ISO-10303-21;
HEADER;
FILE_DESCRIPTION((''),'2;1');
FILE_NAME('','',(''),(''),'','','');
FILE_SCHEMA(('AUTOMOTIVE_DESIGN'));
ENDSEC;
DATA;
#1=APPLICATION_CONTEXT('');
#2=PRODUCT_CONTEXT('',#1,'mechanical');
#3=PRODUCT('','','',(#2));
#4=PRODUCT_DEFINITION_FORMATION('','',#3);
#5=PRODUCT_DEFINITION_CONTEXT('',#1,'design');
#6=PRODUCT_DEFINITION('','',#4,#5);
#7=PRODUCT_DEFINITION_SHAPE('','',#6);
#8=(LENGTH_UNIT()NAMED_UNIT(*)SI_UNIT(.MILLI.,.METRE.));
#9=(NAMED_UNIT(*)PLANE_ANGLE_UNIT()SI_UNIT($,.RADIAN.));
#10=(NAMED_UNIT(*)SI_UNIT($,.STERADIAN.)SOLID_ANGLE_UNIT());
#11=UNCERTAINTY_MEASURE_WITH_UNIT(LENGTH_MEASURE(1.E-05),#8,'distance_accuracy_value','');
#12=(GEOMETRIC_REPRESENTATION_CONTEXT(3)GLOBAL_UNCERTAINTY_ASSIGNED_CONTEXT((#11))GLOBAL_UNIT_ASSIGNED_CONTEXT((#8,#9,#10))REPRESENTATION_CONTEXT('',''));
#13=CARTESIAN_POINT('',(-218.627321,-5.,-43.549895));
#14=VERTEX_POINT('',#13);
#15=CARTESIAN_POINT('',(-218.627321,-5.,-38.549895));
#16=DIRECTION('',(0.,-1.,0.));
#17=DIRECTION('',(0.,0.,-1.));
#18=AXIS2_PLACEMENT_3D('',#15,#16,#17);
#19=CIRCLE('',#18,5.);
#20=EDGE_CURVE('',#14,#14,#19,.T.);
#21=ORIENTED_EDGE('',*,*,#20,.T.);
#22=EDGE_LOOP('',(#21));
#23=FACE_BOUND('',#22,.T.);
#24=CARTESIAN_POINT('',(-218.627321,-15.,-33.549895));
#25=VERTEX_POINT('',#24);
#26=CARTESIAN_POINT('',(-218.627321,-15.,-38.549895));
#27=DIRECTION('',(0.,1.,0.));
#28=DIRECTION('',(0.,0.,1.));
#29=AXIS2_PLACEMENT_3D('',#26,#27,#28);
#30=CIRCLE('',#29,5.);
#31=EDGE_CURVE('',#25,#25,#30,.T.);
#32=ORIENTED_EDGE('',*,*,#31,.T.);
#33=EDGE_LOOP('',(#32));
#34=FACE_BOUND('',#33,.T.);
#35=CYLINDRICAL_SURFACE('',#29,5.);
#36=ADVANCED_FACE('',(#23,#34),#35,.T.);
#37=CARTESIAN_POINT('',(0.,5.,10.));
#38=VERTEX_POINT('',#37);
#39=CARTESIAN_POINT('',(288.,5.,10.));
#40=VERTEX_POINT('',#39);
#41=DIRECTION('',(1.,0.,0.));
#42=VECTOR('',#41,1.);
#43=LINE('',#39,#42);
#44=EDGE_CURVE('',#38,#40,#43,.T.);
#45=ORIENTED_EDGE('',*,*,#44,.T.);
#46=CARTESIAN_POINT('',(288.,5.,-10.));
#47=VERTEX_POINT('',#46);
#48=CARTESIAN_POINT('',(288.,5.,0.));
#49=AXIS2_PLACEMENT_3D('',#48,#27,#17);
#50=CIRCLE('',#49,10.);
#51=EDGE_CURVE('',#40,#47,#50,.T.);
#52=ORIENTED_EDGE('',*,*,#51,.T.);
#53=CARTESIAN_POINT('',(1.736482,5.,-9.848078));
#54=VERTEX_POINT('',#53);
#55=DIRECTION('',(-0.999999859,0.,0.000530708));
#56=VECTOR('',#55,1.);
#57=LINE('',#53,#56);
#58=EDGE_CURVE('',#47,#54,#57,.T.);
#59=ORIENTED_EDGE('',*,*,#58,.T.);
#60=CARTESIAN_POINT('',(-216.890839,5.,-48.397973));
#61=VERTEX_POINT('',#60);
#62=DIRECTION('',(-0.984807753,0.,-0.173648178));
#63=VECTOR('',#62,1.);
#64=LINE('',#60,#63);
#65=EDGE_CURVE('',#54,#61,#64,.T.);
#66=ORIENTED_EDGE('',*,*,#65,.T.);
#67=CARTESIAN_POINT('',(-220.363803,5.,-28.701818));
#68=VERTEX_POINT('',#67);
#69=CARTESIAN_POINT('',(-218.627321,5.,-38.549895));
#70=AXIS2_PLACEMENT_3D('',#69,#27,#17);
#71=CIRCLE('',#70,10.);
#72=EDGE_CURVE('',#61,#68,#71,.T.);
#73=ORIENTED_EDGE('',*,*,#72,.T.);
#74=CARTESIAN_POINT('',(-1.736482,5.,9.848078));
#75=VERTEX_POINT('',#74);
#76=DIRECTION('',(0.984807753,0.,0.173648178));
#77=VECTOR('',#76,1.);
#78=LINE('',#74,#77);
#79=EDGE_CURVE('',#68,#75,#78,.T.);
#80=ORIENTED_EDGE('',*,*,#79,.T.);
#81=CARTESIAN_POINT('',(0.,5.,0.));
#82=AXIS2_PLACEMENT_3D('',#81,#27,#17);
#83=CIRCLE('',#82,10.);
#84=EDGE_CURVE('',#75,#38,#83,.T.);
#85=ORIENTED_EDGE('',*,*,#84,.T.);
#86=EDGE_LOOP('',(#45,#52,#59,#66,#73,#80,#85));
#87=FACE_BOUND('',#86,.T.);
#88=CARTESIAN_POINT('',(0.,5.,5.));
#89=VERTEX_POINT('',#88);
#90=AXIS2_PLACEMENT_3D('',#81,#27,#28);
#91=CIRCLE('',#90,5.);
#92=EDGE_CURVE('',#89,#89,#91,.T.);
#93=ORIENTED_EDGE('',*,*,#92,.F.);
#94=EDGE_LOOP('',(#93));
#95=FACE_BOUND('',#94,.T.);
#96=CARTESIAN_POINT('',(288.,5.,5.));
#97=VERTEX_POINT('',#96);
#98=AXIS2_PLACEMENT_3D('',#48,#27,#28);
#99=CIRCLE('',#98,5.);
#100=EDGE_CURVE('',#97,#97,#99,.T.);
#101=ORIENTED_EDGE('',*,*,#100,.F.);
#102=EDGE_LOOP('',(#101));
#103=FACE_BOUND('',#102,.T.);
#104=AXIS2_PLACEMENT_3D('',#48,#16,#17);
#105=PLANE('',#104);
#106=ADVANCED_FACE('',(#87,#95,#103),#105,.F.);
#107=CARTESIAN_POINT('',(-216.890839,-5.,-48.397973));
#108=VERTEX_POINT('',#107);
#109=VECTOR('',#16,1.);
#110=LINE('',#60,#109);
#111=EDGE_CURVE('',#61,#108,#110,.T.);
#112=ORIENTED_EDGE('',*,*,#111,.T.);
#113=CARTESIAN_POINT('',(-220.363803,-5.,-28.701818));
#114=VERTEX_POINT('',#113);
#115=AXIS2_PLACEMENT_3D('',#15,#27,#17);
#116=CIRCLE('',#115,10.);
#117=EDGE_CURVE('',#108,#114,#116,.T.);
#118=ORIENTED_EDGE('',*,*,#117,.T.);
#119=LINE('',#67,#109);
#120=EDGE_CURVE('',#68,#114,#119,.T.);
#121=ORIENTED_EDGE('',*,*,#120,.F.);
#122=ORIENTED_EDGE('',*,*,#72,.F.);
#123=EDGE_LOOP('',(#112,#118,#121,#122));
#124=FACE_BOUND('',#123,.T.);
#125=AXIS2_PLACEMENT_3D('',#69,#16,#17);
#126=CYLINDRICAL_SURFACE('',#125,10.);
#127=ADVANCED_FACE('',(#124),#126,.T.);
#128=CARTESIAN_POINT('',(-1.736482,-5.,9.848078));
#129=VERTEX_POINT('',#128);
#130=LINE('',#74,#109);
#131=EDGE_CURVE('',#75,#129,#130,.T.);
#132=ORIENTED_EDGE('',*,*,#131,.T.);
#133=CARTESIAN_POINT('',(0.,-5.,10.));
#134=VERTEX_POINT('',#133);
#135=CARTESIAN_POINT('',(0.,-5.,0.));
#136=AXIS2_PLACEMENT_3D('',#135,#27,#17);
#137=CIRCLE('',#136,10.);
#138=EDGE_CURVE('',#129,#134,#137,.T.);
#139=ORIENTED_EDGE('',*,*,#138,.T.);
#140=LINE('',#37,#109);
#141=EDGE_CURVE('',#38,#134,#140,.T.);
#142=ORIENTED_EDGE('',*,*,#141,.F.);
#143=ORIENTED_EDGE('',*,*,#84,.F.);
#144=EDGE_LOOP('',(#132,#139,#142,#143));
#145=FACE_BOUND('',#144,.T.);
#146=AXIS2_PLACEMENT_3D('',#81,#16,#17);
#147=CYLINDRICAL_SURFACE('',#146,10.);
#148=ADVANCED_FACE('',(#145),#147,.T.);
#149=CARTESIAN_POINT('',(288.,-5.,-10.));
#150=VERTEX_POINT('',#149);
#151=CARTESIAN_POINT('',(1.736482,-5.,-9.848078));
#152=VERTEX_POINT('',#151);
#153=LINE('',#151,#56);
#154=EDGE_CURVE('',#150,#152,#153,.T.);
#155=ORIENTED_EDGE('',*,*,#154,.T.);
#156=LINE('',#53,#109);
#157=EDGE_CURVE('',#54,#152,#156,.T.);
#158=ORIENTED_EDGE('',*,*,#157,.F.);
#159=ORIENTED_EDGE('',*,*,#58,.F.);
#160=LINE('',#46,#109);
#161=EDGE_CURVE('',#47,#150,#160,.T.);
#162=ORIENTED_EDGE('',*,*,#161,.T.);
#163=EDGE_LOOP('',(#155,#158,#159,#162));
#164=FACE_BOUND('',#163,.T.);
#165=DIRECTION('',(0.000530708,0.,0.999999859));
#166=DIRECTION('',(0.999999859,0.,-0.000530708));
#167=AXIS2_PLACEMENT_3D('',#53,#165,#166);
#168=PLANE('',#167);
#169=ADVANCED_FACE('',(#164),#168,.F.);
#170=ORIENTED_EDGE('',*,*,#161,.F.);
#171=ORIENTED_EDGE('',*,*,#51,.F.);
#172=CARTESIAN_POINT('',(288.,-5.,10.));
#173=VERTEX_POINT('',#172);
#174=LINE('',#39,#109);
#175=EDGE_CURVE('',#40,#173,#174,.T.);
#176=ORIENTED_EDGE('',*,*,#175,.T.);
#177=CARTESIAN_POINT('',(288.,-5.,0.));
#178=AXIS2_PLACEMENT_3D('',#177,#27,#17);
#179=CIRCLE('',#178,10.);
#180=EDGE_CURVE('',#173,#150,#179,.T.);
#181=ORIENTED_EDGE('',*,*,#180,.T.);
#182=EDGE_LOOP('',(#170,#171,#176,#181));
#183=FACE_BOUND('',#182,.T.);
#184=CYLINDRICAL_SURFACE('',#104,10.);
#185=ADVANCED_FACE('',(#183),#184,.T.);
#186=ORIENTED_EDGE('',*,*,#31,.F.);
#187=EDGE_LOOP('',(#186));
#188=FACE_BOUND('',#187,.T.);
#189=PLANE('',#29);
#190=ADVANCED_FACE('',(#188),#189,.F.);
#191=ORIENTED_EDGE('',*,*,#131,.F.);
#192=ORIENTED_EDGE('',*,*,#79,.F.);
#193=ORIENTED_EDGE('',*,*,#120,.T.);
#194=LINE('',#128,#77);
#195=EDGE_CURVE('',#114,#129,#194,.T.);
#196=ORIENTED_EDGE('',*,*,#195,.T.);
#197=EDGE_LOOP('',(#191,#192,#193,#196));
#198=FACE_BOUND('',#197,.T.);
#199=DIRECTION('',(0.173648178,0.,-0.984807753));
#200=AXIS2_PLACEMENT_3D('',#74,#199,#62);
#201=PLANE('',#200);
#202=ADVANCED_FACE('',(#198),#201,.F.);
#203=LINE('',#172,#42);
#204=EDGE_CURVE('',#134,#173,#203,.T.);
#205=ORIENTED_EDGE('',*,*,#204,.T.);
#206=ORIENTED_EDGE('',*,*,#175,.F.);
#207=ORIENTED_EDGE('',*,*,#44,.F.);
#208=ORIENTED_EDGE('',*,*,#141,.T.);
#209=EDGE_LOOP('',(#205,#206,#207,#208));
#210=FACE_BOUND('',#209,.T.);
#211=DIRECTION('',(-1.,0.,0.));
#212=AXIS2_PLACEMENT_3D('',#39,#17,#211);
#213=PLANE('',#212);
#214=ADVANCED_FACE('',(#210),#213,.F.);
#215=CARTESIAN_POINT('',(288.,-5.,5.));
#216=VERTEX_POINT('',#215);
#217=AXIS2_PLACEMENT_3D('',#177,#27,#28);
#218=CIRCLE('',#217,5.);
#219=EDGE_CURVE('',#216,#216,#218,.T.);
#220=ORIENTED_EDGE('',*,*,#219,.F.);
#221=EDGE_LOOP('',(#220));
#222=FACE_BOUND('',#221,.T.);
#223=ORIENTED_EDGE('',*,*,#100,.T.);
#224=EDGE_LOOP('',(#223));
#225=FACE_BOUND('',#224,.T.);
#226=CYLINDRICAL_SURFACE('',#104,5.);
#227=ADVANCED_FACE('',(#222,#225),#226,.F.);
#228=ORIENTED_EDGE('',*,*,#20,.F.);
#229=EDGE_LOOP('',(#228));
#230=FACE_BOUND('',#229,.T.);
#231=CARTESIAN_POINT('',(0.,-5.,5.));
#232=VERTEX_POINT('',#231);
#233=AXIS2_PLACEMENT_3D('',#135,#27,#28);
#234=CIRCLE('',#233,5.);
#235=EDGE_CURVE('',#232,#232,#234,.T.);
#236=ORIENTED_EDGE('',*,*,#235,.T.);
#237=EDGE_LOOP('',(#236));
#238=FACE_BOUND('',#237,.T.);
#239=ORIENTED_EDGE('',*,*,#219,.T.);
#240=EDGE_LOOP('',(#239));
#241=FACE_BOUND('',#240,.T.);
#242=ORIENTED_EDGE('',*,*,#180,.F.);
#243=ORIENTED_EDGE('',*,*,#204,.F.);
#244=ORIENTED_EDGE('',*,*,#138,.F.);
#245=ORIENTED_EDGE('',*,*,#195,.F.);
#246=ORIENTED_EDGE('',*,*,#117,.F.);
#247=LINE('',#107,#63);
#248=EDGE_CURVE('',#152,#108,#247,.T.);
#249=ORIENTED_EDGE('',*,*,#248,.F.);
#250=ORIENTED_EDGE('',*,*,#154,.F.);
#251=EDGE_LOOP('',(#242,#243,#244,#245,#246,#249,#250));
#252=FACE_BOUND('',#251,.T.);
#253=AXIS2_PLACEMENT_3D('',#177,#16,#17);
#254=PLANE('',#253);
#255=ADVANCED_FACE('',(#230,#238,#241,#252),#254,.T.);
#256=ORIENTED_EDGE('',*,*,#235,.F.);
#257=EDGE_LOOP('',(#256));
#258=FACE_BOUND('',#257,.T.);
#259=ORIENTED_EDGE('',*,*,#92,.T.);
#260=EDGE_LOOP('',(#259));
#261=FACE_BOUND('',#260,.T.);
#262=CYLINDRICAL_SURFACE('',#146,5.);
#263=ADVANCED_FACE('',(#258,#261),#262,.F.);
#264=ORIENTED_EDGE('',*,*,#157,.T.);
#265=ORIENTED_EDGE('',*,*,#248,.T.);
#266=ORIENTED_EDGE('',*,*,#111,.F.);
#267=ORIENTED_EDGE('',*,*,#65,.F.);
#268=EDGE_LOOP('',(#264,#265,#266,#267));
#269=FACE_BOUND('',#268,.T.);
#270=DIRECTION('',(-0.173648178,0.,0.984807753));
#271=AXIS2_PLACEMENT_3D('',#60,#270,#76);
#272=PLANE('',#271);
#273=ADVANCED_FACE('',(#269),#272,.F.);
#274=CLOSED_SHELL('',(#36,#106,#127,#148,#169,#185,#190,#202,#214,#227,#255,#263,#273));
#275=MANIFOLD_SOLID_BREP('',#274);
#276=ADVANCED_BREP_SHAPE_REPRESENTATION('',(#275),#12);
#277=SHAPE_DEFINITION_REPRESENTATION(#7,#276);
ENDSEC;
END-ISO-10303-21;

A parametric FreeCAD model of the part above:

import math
import FreeCAD as App
import Part
import Sketcher
Q = App.Units.Quantity

doc = App.newDocument("Part")
params = doc.addObject("Spreadsheet::Sheet", "Params")
for row, (alias, value) in enumerate([
    ("sketch1_diameter", "10 mm"),
    ("sketch1_radius", "10 mm"),
    ("sketch1_width", "288 mm"),
    ("sketch1_length", "222 mm"),
    ("pad1_length", "10 mm"),
    ("sketch2_diameter", "10 mm"),
    ("pad2_length", "5 mm"),
    ("pad2_length2", "15 mm"),
], start=1):
    params.set(f"A{row}", alias)
    params.set(f"B{row}", "=" + value)
    params.setAlias(f"B{row}", alias)

body = doc.addObject("PartDesign::Body", "Body")

# Sketch on XZ plane
sketch1 = body.newObject("Sketcher::SketchObject", "Sketch")
sketch1.AttachmentSupport = (doc.getObject("XZ_Plane"), [""])
sketch1.MapMode = "FlatFace"
sketch1.addGeometry([
    Part.LineSegment(App.Vector(1.7, -9.8, 0), App.Vector(-216.9, -48.4, 0)),  # 0
    Part.ArcOfCircle(Part.Circle(App.Vector(-218.6, -38.5, 0), App.Vector(0, 0, 1), 10), math.radians(100), math.radians(280)),  # 1
    Part.LineSegment(App.Vector(-220.4, -28.7, 0), App.Vector(-1.7, 9.8, 0)),  # 2
    Part.ArcOfCircle(Part.Circle(App.Vector(0, 0, 0), App.Vector(0, 0, 1), 10), math.radians(90), math.radians(100)),  # 3
    Part.LineSegment(App.Vector(0, 10, 0), App.Vector(288, 10, 0)),  # 4
    Part.ArcOfCircle(Part.Circle(App.Vector(288, 0, 0), App.Vector(0, 0, 1), 10), math.radians(-90), math.radians(90)),  # 5
    Part.LineSegment(App.Vector(288, -10, 0), App.Vector(1.7, -9.8, 0)),  # 6
    Part.Circle(App.Vector(288, 0, 0), App.Vector(0, 0, 1), 5),  # 7
    Part.Circle(App.Vector(0, 0, 0), App.Vector(0, 0, 1), 5),  # 8
    Part.Circle(App.Vector(-218.6, -38.5, 0), App.Vector(0, 0, 1), 5),  # 9
], False)
sketch1.addConstraint([
    Sketcher.Constraint("Tangent", 0, 2, 1, 2),
    Sketcher.Constraint("Tangent", 1, 1, 2, 1),
    Sketcher.Constraint("Tangent", 2, 2, 3, 2),
    Sketcher.Constraint("Tangent", 3, 1, 4, 1),
    Sketcher.Constraint("Tangent", 4, 2, 5, 2),
    Sketcher.Constraint("Coincident", 5, 1, 6, 1),
    Sketcher.Constraint("Coincident", 6, 2, 0, 1),
    Sketcher.Constraint("Horizontal", 4),
    Sketcher.Constraint("Coincident", 3, 3, -1, 1),
    Sketcher.Constraint("Coincident", 8, 3, -1, 1),
    Sketcher.Constraint("Coincident", 7, 3, 5, 3),
    Sketcher.Constraint("Coincident", 9, 3, 1, 3),
    Sketcher.Constraint("Equal", 1, 3),
    Sketcher.Constraint("Equal", 3, 5),
    Sketcher.Constraint("Equal", 7, 8),
    Sketcher.Constraint("Equal", 8, 9),
    Sketcher.Constraint("Symmetric", 2, 2, 6, 2, -1, 1),
    Sketcher.Constraint("Vertical", 4, 2, 5, 1),
    Sketcher.Constraint("Diameter", 7, 10.0),
    Sketcher.Constraint("Radius", 1, 10.0),
    Sketcher.Constraint("DistanceX", 4, 1, 4, 2, 288.0),
    Sketcher.Constraint("Angle", 0, Q("-170 deg")),
    Sketcher.Constraint("Distance", 0, 222.0),
])
sketch1.setExpression("Constraints[18]", "Params.sketch1_diameter")
sketch1.setExpression("Constraints[19]", "Params.sketch1_radius")
sketch1.setExpression("Constraints[20]", "Params.sketch1_width")
sketch1.setExpression("Constraints[22]", "Params.sketch1_length")
pad1 = body.newObject("PartDesign::Pad", "Pad")
pad1.Profile = sketch1
pad1.setExpression("Length", "Params.pad1_length")
pad1.Midplane = True

# Sketch on XZ plane
sketch2 = body.newObject("Sketcher::SketchObject", "Sketch001")
sketch2.AttachmentSupport = (doc.getObject("XZ_Plane"), [""])
sketch2.MapMode = "FlatFace"
sketch2.addGeometry(Part.Circle(App.Vector(-219, -39, 0), App.Vector(0, 0, 1), 5), False)
sketch2.addConstraint([
    Sketcher.Constraint("Diameter", 0, 10.0),
    Sketcher.Constraint("DistanceX", 0, 3, -1, 1, 218.627321),
    Sketcher.Constraint("DistanceY", 0, 3, -1, 1, 38.549895),
])
sketch2.setExpression("Constraints[0]", "Params.sketch2_diameter")
pad2 = body.newObject("PartDesign::Pad", "Pad001")
pad2.Profile = sketch2
pad2.Type = "TwoLengths"
pad2.setExpression("Length", "Params.pad2_length")
pad2.setExpression("Length2", "Params.pad2_length2")
pad2.Reversed = True

doc.recompute()
